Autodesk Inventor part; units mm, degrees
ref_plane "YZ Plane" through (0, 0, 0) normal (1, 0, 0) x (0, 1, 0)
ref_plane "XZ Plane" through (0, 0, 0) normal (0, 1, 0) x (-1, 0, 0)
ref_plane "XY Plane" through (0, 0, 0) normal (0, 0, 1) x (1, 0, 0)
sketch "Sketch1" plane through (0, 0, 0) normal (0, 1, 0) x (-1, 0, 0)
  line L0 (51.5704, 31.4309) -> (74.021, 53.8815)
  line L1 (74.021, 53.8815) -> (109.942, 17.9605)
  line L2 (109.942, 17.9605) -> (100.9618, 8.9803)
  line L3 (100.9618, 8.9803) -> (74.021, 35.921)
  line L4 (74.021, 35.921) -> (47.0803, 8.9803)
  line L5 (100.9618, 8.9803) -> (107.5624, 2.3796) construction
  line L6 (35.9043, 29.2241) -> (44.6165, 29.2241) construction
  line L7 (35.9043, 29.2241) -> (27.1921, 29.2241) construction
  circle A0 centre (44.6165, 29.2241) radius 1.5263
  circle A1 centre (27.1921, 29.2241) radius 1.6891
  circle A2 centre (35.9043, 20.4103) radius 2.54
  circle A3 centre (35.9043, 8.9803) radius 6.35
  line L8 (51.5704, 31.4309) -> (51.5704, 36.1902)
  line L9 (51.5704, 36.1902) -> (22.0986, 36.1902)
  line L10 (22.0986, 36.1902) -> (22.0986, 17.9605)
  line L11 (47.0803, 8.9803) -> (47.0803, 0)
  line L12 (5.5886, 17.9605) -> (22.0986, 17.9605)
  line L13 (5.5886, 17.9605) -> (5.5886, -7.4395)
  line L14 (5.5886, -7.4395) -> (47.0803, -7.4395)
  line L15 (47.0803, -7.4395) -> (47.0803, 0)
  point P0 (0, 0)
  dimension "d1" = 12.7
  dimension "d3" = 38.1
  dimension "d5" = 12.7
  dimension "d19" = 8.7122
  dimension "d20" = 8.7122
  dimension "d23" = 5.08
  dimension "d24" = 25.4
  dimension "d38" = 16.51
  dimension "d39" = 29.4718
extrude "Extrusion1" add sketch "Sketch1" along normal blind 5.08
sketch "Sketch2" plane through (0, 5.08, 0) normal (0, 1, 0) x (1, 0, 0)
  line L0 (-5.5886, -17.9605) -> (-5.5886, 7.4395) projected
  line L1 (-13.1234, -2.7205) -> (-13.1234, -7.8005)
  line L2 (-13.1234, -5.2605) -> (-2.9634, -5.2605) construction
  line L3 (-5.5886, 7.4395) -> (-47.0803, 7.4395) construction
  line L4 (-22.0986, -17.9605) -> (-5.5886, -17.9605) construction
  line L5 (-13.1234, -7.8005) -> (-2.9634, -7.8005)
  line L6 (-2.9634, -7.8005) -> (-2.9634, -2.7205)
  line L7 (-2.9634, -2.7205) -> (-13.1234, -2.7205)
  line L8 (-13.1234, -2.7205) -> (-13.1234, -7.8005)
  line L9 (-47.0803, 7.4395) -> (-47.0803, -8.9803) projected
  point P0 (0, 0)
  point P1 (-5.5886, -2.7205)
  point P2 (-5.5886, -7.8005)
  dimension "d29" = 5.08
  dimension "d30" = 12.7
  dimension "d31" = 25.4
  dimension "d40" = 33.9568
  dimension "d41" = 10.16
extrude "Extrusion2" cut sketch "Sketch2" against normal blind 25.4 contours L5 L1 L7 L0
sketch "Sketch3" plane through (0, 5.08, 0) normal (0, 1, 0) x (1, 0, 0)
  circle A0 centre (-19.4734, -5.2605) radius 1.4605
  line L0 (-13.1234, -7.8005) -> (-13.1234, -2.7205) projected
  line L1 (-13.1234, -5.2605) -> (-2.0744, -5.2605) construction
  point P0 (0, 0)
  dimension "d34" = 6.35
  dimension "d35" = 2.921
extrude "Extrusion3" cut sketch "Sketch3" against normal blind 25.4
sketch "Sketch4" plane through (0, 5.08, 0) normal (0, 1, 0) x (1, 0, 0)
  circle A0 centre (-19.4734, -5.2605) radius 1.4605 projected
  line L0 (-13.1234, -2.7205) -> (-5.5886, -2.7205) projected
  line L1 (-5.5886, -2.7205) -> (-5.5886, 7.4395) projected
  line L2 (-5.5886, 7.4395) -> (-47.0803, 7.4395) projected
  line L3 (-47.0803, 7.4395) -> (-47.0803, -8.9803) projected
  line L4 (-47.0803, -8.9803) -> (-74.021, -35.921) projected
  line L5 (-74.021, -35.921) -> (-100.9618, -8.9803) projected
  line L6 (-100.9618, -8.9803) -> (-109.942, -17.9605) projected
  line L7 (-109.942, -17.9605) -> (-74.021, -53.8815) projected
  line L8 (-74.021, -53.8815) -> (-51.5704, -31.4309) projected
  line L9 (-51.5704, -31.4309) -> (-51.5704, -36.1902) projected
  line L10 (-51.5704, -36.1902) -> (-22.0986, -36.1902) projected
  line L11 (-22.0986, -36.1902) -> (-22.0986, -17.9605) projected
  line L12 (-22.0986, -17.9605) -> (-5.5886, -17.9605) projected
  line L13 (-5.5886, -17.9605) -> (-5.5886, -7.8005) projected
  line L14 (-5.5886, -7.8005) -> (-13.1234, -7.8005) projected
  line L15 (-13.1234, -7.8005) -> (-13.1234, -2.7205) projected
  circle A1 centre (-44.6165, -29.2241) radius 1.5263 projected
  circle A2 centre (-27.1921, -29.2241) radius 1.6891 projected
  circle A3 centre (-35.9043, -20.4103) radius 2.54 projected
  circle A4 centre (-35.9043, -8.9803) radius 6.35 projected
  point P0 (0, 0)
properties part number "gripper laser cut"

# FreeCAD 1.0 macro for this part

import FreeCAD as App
import Part
import Sketcher
Q = App.Units.Quantity


def add_polygon(sketch, points):
    """Adds a closed chain of lines whose ends are joined by coincident constraints."""
    first, n = sketch.GeometryCount, len(points)
    for a, b in zip(points, points[1:] + points[:1]):
        sketch.addGeometry(Part.LineSegment(App.Vector(*a, 0), App.Vector(*b, 0)), False)
    for i in range(n):
        sketch.addConstraint(Sketcher.Constraint("Coincident", first + i, 2, first + (i + 1) % n, 1))

doc = App.newDocument("Part")
body = doc.addObject("PartDesign::Body", "Body")

# Sketch on XZ plane
sketch1 = body.newObject("Sketcher::SketchObject", "Sketch")
sketch1.AttachmentSupport = (doc.getObject("XZ_Plane"), [""])
sketch1.MapMode = "FlatFace"
add_polygon(sketch1, [(-74, 53.9), (-51.6, 31.4), (-51.6, 36.2), (-22.1, 36.2), (-22.1, 18), (-5.6, 18), (-5.6, -7.4), (-47.1, -7.4), (-47.1, 9), (-74, 35.9), (-101, 9), (-109.9, 18)])  # lines 0-11
sketch1.addGeometry(Part.Circle(App.Vector(-35.9, 9, 0), App.Vector(0, 0, 1), 6.3), False)  # 12
sketch1.addGeometry(Part.Circle(App.Vector(-35.9, 20.4, 0), App.Vector(0, 0, 1), 2.5), False)  # 13
sketch1.addGeometry(Part.Circle(App.Vector(-27.2, 29.2, 0), App.Vector(0, 0, 1), 1.7), False)  # 14
sketch1.addGeometry(Part.Circle(App.Vector(-44.6, 29.2, 0), App.Vector(0, 0, 1), 1.5), False)  # 15
sketch1.addConstraint(Sketcher.Constraint("Vertical", 1))
sketch1.addConstraint(Sketcher.Constraint("Horizontal", 2))
sketch1.addConstraint(Sketcher.Constraint("Vertical", 3))
sketch1.addConstraint(Sketcher.Constraint("Horizontal", 4))
sketch1.addConstraint(Sketcher.Constraint("Vertical", 5))
sketch1.addConstraint(Sketcher.Constraint("Horizontal", 6))
sketch1.addConstraint(Sketcher.Constraint("Vertical", 7))
sketch1.addConstraint(Sketcher.Constraint("Parallel", 0, 8))
sketch1.addConstraint(Sketcher.Constraint("Perpendicular", 8, 9))
sketch1.addConstraint(Sketcher.Constraint("Perpendicular", 9, 10))
sketch1.addConstraint(Sketcher.Constraint("Perpendicular", 10, 11))
sketch1.addConstraint(Sketcher.Constraint("Horizontal", 14, 3, 15, 3))
sketch1.addConstraint(Sketcher.Constraint("Horizontal", 12, 3, 7, 2))
sketch1.addConstraint(Sketcher.Constraint("Horizontal", 7, 2, 9, 2))
sketch1.addConstraint(Sketcher.Constraint("Horizontal", 4, 2, 10, 2))
sketch1.addConstraint(Sketcher.Constraint("Vertical", 12, 3, 13, 3))
sketch1.addConstraint(Sketcher.Constraint("Vertical", 8, 2, 11, 2))
sketch1.addConstraint(Sketcher.Constraint("Equal", 8, 9))
sketch1.addConstraint(Sketcher.Constraint("Diameter", 12, Q("0.5 in")))
sketch1.addConstraint(Sketcher.Constraint("Diameter", 13, Q("0.2 in")))
sketch1.addConstraint(Sketcher.Constraint("DistanceY", 5, 2, 5, 1, Q("1 in")))
sketch1.addConstraint(Sketcher.Constraint("Distance", 8, Q("1.5 in")))
sketch1.addConstraint(Sketcher.Constraint("Distance", 10, Q("0.5 in")))
sketch1.addConstraint(Sketcher.Constraint("DistanceX", 4, 1, 4, 2, Q("0.65 in")))
sketch1.addConstraint(Sketcher.Constraint("Diameter", 14, Q("0.133 in")))
sketch1.addConstraint(Sketcher.Constraint("DistanceX", 2, 1, 2, 2, Q("1.1603 in")))
sketch1.addConstraint(Sketcher.Constraint("DistanceX", 13, 3, 14, 3, Q("0.343 in")))
sketch1.addConstraint(Sketcher.Constraint("DistanceX", 15, 3, 13, 3, Q("0.343 in")))
sketch1.addConstraint(Sketcher.Constraint("Distance", 0, Q("1.25 in")))
sketch1.addConstraint(Sketcher.Constraint("Diameter", 15, Q("3.0526 mm")))
sketch1.addConstraint(Sketcher.Constraint("DistanceY", 12, 3, 13, 3, Q("0.45 in")))
sketch1.addConstraint(Sketcher.Constraint("DistanceX", 6, 2, 12, 3, Q("0.44 in")))
sketch1.addConstraint(Sketcher.Constraint("DistanceY", 3, 2, 3, 1, Q("0.7177 in")))
sketch1.addConstraint(Sketcher.Constraint("DistanceY", 13, 3, 14, 3, Q("0.347 in")))
sketch1.addConstraint(Sketcher.Constraint("DistanceY", -1, 1, 1, 2, Q("1.4248 in")))
sketch1.addConstraint(Sketcher.Constraint("DistanceX", 12, 3, -1, 1, Q("35.9043 mm")))
pad1 = body.newObject("PartDesign::Pad", "Pad")
pad1.Profile = sketch1
pad1.Length = Q("0.2 in")
pad1.Reversed = True

# Sketch on XZ plane
sketch2 = body.newObject("Sketcher::SketchObject", "Sketch001")
sketch2.AttachmentSupport = (doc.getObject("XZ_Plane"), [""])
sketch2.MapMode = "FlatFace"
sketch2.AttachmentOffset = App.Placement(App.Vector(0, 0, -0.2 * 25.4), App.Rotation())
add_polygon(sketch2, [(-13, 8), (-6, 8), (-6, 3), (-13, 3)])  # lines 0-3
sketch2.addConstraint(Sketcher.Constraint("Horizontal", 0))
sketch2.addConstraint(Sketcher.Constraint("Vertical", 1))
sketch2.addConstraint(Sketcher.Constraint("Horizontal", 2))
sketch2.addConstraint(Sketcher.Constraint("Vertical", 3))
sketch2.addConstraint(Sketcher.Constraint("DistanceY", 1, 2, 1, 1, Q("0.2 in")))
sketch2.addConstraint(Sketcher.Constraint("DistanceX", 0, 1, 0, 2, Q("7.5348 mm")))
sketch2.addConstraint(Sketcher.Constraint("DistanceY", -1, 1, 0, 2, Q("0.3071 in")))
sketch2.addConstraint(Sketcher.Constraint("DistanceX", 0, 2, -1, 1, Q("5.5886 mm")))
pocket1 = body.newObject("PartDesign::Pocket", "Pocket")
pocket1.Profile = sketch2
pocket1.Length = Q("1 in")
pocket1.Reversed = True

# Sketch on XZ plane
sketch3 = body.newObject("Sketcher::SketchObject", "Sketch002")
sketch3.AttachmentSupport = (doc.getObject("XZ_Plane"), [""])
sketch3.MapMode = "FlatFace"
sketch3.AttachmentOffset = App.Placement(App.Vector(0, 0, -0.2 * 25.4), App.Rotation())
sketch3.addGeometry(Part.Circle(App.Vector(-19.5, 5.3, 0), App.Vector(0, 0, 1), 1.5), False)
sketch3.addConstraint(Sketcher.Constraint("Diameter", 0, Q("0.115 in")))
sketch3.addConstraint(Sketcher.Constraint("DistanceY", -1, 1, 0, 3, Q("0.2071 in")))
sketch3.addConstraint(Sketcher.Constraint("DistanceX", 0, 3, -1, 1, Q("19.4734 mm")))
pocket2 = body.newObject("PartDesign::Pocket", "Pocket001")
pocket2.Profile = sketch3
pocket2.Length = Q("1 in")
pocket2.Reversed = True

doc.recompute()
